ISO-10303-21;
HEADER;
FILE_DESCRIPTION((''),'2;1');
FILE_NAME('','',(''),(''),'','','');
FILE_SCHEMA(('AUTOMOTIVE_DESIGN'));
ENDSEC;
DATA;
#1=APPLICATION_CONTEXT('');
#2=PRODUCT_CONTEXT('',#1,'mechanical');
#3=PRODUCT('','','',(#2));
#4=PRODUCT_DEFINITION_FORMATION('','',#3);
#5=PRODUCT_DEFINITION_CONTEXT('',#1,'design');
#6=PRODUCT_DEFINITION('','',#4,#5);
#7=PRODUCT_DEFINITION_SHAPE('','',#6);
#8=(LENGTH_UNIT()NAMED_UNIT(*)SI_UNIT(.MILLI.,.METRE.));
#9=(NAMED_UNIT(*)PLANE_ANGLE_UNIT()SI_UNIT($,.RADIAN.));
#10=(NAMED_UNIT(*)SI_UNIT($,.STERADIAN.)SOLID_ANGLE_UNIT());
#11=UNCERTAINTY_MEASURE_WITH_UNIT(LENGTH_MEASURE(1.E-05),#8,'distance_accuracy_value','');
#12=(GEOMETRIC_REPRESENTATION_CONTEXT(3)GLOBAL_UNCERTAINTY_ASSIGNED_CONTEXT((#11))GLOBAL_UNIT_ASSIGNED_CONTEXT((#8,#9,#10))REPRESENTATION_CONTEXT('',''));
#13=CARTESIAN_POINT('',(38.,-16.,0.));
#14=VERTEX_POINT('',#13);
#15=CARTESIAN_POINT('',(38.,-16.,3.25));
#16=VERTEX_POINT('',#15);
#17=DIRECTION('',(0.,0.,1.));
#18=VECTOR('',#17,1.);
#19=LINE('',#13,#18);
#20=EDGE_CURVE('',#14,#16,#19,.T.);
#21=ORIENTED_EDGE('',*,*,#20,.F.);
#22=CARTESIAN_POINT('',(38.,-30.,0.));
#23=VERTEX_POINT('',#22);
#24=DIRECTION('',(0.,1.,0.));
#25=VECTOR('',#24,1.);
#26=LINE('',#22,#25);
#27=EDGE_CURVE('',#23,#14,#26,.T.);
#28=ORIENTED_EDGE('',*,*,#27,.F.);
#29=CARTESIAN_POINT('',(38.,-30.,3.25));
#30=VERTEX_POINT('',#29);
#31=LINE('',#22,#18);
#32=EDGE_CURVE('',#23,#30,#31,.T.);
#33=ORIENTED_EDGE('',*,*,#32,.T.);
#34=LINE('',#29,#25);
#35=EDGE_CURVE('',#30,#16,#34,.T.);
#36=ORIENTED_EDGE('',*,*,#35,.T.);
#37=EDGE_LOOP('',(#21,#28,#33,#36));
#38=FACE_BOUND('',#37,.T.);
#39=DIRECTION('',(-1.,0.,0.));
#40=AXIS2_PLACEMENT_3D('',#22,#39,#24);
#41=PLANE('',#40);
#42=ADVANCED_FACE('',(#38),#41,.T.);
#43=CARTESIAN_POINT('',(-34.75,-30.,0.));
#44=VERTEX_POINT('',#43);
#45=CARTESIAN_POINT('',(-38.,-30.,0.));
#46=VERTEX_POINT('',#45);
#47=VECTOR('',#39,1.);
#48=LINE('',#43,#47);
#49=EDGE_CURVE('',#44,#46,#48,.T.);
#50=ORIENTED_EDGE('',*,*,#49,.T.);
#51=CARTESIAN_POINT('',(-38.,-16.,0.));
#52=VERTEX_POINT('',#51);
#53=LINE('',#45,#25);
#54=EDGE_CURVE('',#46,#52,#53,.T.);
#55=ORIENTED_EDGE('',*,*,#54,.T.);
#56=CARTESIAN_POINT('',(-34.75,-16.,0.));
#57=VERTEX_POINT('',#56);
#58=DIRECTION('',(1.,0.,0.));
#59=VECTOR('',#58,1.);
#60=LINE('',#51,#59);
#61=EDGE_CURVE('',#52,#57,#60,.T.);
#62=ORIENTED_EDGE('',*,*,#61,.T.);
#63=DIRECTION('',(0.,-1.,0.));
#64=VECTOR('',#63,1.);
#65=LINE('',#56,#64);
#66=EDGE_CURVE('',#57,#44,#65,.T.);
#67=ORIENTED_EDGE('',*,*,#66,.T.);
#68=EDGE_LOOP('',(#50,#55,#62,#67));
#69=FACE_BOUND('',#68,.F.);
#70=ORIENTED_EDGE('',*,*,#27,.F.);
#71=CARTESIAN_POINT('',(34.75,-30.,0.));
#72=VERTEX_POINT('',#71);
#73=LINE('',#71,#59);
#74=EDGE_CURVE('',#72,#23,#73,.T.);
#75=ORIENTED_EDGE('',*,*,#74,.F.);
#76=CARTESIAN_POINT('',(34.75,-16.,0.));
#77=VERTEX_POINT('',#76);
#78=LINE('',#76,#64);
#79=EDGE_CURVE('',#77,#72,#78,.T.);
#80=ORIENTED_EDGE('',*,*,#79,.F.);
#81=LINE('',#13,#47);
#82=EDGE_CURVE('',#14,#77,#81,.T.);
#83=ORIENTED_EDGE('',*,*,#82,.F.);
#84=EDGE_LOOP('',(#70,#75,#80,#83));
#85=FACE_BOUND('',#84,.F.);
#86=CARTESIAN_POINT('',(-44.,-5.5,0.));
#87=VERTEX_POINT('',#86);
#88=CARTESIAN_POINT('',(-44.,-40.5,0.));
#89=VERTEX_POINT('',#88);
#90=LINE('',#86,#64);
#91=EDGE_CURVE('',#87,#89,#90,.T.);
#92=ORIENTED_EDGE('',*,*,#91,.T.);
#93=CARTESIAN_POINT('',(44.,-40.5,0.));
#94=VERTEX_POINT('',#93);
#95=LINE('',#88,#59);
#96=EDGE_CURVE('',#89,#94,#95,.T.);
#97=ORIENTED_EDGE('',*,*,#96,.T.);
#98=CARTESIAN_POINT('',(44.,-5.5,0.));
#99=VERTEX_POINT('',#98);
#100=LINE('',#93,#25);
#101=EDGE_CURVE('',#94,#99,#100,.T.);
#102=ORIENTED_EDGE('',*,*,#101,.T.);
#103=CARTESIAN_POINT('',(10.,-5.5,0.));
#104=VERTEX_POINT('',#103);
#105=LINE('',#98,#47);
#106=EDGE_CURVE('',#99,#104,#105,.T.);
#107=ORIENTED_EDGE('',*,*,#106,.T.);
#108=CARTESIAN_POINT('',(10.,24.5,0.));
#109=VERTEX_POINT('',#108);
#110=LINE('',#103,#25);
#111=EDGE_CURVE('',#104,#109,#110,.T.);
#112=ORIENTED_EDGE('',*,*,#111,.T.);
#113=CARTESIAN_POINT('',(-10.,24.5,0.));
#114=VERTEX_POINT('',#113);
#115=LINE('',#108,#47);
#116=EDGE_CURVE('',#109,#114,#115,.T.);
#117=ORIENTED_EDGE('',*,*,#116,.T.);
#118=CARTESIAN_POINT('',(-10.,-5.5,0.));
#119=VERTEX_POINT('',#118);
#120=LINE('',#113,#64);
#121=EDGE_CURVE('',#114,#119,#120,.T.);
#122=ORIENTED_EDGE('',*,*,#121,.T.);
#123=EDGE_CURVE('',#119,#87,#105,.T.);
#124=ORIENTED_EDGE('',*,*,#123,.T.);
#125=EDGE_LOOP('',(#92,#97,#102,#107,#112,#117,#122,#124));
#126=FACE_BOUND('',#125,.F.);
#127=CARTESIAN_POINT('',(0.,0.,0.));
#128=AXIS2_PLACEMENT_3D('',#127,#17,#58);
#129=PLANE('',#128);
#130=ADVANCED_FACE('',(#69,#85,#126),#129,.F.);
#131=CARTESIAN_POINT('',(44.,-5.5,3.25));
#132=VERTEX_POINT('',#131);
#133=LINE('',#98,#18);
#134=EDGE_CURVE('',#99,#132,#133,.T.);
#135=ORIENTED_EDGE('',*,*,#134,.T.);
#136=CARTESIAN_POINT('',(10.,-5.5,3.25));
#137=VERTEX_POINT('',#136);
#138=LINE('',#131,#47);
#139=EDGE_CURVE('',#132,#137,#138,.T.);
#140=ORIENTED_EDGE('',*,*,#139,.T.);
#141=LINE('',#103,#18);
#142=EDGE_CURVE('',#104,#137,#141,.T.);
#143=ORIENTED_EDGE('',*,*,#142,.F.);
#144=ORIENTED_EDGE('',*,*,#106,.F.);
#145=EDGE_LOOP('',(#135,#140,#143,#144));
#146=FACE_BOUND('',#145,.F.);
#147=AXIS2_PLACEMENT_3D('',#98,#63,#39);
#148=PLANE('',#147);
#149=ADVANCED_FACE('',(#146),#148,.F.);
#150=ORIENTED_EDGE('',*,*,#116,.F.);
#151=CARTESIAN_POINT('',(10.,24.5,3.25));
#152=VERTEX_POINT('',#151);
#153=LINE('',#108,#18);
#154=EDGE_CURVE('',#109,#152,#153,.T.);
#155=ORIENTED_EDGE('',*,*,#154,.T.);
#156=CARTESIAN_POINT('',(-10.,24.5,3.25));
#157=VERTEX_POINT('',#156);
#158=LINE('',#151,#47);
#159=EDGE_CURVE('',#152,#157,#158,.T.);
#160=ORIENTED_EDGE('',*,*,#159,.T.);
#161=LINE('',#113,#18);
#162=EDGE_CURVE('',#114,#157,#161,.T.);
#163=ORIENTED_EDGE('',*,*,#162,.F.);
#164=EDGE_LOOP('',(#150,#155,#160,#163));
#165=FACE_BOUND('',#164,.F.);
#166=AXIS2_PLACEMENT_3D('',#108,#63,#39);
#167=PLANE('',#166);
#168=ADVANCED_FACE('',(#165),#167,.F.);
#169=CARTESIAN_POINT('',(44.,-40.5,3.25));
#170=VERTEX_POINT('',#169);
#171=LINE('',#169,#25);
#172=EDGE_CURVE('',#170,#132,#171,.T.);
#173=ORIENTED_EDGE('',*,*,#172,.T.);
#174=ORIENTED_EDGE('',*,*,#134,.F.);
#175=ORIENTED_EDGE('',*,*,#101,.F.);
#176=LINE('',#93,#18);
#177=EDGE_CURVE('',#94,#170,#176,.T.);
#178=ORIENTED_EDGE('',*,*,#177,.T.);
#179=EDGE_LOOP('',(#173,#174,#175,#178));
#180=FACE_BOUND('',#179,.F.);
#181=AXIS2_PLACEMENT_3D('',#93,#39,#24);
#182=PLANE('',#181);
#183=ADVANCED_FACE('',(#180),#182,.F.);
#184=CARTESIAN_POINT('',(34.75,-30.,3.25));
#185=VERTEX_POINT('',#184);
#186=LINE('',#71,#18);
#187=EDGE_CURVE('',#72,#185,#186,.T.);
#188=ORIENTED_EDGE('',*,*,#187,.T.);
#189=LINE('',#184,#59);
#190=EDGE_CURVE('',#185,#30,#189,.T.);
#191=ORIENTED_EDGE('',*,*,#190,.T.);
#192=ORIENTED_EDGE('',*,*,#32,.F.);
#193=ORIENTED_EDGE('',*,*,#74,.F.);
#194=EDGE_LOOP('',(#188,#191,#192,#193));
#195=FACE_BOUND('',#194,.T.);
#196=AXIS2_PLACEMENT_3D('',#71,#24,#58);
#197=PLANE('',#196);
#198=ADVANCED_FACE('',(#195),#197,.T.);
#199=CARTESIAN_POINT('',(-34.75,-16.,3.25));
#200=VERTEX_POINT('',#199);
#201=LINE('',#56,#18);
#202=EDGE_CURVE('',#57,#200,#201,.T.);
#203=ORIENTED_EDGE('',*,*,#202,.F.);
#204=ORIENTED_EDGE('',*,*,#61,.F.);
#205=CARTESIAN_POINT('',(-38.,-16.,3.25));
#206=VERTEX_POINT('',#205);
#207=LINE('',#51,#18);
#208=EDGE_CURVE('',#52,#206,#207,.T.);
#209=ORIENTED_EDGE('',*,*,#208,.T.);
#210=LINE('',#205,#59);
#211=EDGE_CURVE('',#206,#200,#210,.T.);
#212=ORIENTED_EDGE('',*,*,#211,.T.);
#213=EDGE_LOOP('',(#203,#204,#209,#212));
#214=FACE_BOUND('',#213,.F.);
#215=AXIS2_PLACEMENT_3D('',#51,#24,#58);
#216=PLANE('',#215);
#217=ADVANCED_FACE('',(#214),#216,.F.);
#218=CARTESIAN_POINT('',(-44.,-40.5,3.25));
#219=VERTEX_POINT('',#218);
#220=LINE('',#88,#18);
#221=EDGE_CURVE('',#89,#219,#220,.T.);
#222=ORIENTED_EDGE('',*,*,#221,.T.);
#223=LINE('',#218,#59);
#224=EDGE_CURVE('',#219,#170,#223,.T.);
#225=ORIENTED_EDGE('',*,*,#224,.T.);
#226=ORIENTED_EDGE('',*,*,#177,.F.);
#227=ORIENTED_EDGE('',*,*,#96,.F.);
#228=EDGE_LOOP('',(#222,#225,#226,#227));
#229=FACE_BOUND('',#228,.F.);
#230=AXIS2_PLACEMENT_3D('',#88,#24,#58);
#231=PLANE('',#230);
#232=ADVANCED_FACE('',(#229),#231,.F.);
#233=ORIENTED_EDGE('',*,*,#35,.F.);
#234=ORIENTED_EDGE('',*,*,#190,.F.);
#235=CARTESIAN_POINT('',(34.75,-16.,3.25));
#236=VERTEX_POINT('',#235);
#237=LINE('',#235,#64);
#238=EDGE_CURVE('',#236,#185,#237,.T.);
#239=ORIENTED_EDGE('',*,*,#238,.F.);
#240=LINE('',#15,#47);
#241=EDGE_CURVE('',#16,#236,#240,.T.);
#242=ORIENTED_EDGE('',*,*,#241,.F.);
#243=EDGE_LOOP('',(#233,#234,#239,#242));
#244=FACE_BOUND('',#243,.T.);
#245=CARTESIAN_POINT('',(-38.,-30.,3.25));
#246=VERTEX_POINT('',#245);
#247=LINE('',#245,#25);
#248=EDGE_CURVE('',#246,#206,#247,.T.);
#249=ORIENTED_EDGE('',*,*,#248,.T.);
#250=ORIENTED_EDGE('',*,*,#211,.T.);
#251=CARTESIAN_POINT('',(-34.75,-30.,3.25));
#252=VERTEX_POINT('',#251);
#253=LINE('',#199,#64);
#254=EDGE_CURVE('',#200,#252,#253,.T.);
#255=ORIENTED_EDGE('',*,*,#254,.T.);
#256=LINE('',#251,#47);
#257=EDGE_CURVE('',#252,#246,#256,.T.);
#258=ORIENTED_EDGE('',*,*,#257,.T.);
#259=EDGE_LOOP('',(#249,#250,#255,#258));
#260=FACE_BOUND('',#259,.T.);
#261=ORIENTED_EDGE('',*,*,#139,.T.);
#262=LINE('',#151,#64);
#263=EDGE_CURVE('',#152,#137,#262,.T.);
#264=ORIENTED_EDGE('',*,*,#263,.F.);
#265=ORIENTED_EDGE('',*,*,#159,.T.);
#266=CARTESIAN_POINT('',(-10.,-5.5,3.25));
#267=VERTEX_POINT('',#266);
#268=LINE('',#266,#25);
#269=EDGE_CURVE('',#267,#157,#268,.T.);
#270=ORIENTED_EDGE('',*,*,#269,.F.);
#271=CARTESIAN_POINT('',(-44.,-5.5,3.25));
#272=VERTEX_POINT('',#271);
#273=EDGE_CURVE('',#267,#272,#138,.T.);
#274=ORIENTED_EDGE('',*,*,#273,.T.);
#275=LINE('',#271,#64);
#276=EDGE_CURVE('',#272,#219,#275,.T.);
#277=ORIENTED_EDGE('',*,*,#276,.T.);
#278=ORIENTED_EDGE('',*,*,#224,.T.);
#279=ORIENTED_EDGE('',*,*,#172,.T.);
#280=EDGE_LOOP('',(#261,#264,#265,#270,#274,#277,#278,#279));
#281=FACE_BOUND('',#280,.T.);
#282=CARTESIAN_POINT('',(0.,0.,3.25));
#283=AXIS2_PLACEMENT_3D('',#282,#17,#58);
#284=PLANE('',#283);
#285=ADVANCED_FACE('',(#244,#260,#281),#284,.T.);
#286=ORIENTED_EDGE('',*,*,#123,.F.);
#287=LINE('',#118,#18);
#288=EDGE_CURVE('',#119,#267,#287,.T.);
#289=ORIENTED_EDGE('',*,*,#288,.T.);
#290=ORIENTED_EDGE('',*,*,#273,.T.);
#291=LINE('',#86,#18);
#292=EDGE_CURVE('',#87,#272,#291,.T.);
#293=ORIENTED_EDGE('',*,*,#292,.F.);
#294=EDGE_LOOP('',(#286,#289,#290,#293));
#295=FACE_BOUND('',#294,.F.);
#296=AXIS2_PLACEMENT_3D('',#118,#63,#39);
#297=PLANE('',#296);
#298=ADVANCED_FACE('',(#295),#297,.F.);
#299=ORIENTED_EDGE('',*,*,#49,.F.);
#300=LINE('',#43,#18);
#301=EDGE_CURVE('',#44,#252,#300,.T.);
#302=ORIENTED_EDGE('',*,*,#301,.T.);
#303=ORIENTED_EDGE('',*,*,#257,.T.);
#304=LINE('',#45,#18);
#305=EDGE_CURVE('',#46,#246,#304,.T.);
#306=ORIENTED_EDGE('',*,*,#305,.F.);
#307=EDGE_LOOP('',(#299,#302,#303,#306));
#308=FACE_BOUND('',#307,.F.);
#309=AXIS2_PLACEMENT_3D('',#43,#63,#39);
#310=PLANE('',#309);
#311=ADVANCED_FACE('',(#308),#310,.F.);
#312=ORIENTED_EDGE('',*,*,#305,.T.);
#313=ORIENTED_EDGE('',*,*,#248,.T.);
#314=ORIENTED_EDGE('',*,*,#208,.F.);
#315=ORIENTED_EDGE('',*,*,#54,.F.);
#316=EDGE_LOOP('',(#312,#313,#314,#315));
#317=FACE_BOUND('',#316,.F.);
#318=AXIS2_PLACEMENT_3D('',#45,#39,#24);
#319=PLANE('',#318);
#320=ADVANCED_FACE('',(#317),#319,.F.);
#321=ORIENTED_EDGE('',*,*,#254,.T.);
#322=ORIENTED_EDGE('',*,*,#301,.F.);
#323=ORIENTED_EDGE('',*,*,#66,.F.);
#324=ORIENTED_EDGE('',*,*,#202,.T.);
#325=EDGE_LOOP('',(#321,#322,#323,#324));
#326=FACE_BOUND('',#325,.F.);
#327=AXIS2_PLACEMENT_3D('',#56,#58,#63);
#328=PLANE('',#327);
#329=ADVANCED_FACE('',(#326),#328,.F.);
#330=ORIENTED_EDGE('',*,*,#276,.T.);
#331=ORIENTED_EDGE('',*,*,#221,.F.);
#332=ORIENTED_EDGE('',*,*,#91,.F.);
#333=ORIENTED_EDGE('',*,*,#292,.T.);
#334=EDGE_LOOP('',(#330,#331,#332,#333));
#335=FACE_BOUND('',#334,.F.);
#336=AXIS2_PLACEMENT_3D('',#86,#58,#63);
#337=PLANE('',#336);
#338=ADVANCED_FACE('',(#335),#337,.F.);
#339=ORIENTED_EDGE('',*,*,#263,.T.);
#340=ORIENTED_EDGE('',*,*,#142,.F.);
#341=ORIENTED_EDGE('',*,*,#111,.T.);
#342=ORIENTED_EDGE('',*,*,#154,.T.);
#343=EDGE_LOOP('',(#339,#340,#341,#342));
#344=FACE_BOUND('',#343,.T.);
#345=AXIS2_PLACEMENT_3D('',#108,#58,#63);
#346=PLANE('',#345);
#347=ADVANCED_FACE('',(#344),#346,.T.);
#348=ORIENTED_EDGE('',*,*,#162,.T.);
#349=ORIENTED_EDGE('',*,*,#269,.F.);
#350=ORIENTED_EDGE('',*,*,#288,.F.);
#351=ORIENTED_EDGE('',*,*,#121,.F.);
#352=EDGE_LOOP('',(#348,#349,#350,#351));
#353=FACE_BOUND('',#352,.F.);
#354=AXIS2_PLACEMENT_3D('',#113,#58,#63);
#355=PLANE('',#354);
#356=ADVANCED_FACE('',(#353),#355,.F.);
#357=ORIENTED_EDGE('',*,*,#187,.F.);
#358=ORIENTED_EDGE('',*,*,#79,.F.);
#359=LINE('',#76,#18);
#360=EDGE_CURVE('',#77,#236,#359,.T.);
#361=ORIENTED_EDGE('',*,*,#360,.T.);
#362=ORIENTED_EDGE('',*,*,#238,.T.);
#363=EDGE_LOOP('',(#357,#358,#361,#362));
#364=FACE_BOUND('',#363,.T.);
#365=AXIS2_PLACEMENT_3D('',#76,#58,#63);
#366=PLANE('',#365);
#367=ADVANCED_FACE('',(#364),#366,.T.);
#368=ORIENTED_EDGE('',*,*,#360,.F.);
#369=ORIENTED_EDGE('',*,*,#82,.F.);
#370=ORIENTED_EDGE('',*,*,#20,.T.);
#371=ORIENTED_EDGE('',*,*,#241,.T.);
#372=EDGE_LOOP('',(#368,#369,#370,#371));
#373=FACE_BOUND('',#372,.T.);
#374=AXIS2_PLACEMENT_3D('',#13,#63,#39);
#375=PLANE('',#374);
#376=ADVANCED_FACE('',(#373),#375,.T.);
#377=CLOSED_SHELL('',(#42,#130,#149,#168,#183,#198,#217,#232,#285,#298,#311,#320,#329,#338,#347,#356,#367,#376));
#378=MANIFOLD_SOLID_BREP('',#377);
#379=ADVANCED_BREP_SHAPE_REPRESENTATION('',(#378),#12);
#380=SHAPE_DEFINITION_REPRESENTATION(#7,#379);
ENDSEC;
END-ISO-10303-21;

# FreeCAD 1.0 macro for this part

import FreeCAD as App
import Part
import Sketcher
from FreeCAD import Vector


def add_polygon(sketch, points):
    """Adds a closed chain of lines whose ends are joined by coincident constraints."""
    first, n = sketch.GeometryCount, len(points)
    for a, b in zip(points, points[1:] + points[:1]):
        sketch.addGeometry(Part.LineSegment(App.Vector(*a, 0), App.Vector(*b, 0)), False)
    for i in range(n):
        sketch.addConstraint(Sketcher.Constraint("Coincident", first + i, 2, first + (i + 1) % n, 1))

doc = App.newDocument("Part")
body = doc.addObject("PartDesign::Body", "Body")

sketch1 = body.newObject("Sketcher::SketchObject", "Sketch")
sketch1.AttachmentSupport = (doc.getObject("XY_Plane"), [""])
sketch1.MapMode = "FlatFace"
add_polygon(sketch1, [(10, 24.5), (-10, 24.5), (-10, -5.5), (-44, -5.5), (-44, -40.5), (44, -40.5), (44, -5.5), (10, -5.5)])
add_polygon(sketch1, [(38, -16), (38, -30), (34.8, -30), (34.8, -16)])
add_polygon(sketch1, [(-38, -30), (-38, -16), (-34.8, -16), (-34.8, -30)])
sketch1.addConstraint(Sketcher.Constraint("Horizontal", 0))
sketch1.addConstraint(Sketcher.Constraint("Vertical", 1))
sketch1.addConstraint(Sketcher.Constraint("Horizontal", 2))
sketch1.addConstraint(Sketcher.Constraint("Vertical", 3))
sketch1.addConstraint(Sketcher.Constraint("Horizontal", 4))
sketch1.addConstraint(Sketcher.Constraint("Vertical", 5))
sketch1.addConstraint(Sketcher.Constraint("Horizontal", 6))
sketch1.addConstraint(Sketcher.Constraint("Vertical", 7))
sketch1.addConstraint(Sketcher.Constraint("Vertical", 8))
sketch1.addConstraint(Sketcher.Constraint("Horizontal", 9))
sketch1.addConstraint(Sketcher.Constraint("Vertical", 10))
sketch1.addConstraint(Sketcher.Constraint("Horizontal", 11))
sketch1.addConstraint(Sketcher.Constraint("Vertical", 12))
sketch1.addConstraint(Sketcher.Constraint("Horizontal", 13))
sketch1.addConstraint(Sketcher.Constraint("Vertical", 14))
sketch1.addConstraint(Sketcher.Constraint("Horizontal", 15))
sketch1.addConstraint(Sketcher.Constraint("Symmetric", 2, 2, 5, 2, -2))
sketch1.addConstraint(Sketcher.Constraint("Symmetric", 11, 2, 12, 2, -2))
sketch1.addConstraint(Sketcher.Constraint("Symmetric", 9, 2, 14, 2, -2))
sketch1.addConstraint(Sketcher.Constraint("Equal", 2, 6))
sketch1.addConstraint(Sketcher.Constraint("DistanceX", 0, 2, 0, 1, 20.0))
sketch1.addConstraint(Sketcher.Constraint("DistanceY", 1, 2, 1, 1, 30.0))
sketch1.addConstraint(Sketcher.Constraint("DistanceY", 3, 2, 3, 1, 35.0))
sketch1.addConstraint(Sketcher.Constraint("DistanceY", 8, 2, 8, 1, 14.0))
sketch1.addConstraint(Sketcher.Constraint("DistanceY", 8, 2, -1, 1, 30.0))
sketch1.addConstraint(Sketcher.Constraint("DistanceX", 8, 2, 4, 2, 6.0))
sketch1.addConstraint(Sketcher.Constraint("DistanceX", 9, 2, 9, 1, 3.25))
sketch1.addConstraint(Sketcher.Constraint("DistanceX", 2, 2, 2, 1, 34.0))
sketch1.addConstraint(Sketcher.Constraint("DistanceY", -1, 1, 0, 2, 24.5))
pad1 = body.newObject("PartDesign::Pad", "Pad")
pad1.Profile = sketch1
pad1.Length = 3.25

doc.recompute()
